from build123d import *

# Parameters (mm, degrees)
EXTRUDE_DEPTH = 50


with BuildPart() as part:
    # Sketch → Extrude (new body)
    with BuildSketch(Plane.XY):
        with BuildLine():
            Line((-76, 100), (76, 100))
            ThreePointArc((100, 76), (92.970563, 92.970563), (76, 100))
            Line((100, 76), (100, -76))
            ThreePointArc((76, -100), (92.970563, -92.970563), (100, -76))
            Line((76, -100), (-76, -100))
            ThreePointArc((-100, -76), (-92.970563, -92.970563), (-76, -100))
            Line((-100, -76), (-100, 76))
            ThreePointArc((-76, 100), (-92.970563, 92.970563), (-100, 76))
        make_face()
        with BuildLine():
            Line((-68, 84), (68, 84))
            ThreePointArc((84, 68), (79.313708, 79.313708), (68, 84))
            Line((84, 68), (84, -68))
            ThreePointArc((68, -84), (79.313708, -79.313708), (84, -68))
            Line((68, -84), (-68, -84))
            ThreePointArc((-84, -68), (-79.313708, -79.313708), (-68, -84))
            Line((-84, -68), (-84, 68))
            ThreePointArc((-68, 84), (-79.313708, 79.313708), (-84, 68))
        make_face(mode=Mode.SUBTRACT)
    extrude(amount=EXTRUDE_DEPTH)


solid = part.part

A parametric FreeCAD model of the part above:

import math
import FreeCAD as App
import Part
import Sketcher

V = App.Vector

doc = App.newDocument("Part")
body = doc.addObject("PartDesign::Body", "Body")

# Sketch on XY plane
sketch1 = body.newObject("Sketcher::SketchObject", "Sketch")
sketch1.AttachmentSupport = (doc.getObject("XY_Plane"), [""])
sketch1.MapMode = "FlatFace"
sketch1.addGeometry([
    Part.LineSegment(V(76, 100, 0), V(-76, 100, 0)),  # 0
    Part.ArcOfCircle(Part.Circle(V(-76, 76, 0), V(0, 0, 1), 24), math.radians(90), math.radians(180)),  # 1
    Part.LineSegment(V(-100, 76, 0), V(-100, -76, 0)),  # 2
    Part.ArcOfCircle(Part.Circle(V(-76, -76, 0), V(0, 0, 1), 24), math.radians(180), math.radians(270)),  # 3
    Part.LineSegment(V(-76, -100, 0), V(76, -100, 0)),  # 4
    Part.ArcOfCircle(Part.Circle(V(76, -76, 0), V(0, 0, 1), 24), math.radians(-90), math.radians(0)),  # 5
    Part.LineSegment(V(100, -76, 0), V(100, 76, 0)),  # 6
    Part.ArcOfCircle(Part.Circle(V(76, 76, 0), V(0, 0, 1), 24), math.radians(0), math.radians(90)),  # 7
    Part.LineSegment(V(-68, 84, 0), V(68, 84, 0)),  # 8
    Part.ArcOfCircle(Part.Circle(V(68, 68, 0), V(0, 0, 1), 16), math.radians(0), math.radians(90)),  # 9
    Part.LineSegment(V(84, 68, 0), V(84, -68, 0)),  # 10
    Part.ArcOfCircle(Part.Circle(V(68, -68, 0), V(0, 0, 1), 16), math.radians(-90), math.radians(0)),  # 11
    Part.LineSegment(V(68, -84, 0), V(-68, -84, 0)),  # 12
    Part.ArcOfCircle(Part.Circle(V(-68, -68, 0), V(0, 0, 1), 16), math.radians(-180), math.radians(-90)),  # 13
    Part.LineSegment(V(-84, -68, 0), V(-84, 68, 0)),  # 14
    Part.ArcOfCircle(Part.Circle(V(-68, 68, 0), V(0, 0, 1), 16), math.radians(90), math.radians(180)),  # 15
], False)
sketch1.addConstraint([
    Sketcher.Constraint("Tangent", 0, 2, 1, 1),
    Sketcher.Constraint("Tangent", 1, 2, 2, 1),
    Sketcher.Constraint("Tangent", 2, 2, 3, 1),
    Sketcher.Constraint("Tangent", 3, 2, 4, 1),
    Sketcher.Constraint("Tangent", 4, 2, 5, 1),
    Sketcher.Constraint("Tangent", 5, 2, 6, 1),
    Sketcher.Constraint("Tangent", 6, 2, 7, 1),
    Sketcher.Constraint("Tangent", 7, 2, 0, 1),
    Sketcher.Constraint("Tangent", 8, 2, 9, 2),
    Sketcher.Constraint("Tangent", 9, 1, 10, 1),
    Sketcher.Constraint("Tangent", 10, 2, 11, 2),
    Sketcher.Constraint("Tangent", 11, 1, 12, 1),
    Sketcher.Constraint("Tangent", 12, 2, 13, 2),
    Sketcher.Constraint("Tangent", 13, 1, 14, 1),
    Sketcher.Constraint("Tangent", 14, 2, 15, 2),
    Sketcher.Constraint("Tangent", 15, 1, 8, 1),
    Sketcher.Constraint("Horizontal", 0),
    Sketcher.Constraint("Vertical", 2),
    Sketcher.Constraint("Horizontal", 4),
    Sketcher.Constraint("Vertical", 6),
    Sketcher.Constraint("Horizontal", 8),
    Sketcher.Constraint("Vertical", 10),
    Sketcher.Constraint("Horizontal", 12),
    Sketcher.Constraint("Vertical", 14),
    Sketcher.Constraint("Equal", 1, 3),
    Sketcher.Constraint("Equal", 3, 5),
    Sketcher.Constraint("Equal", 5, 7),
    Sketcher.Constraint("Equal", 9, 11),
    Sketcher.Constraint("Equal", 11, 13),
    Sketcher.Constraint("Equal", 13, 15),
    Sketcher.Constraint("Symmetric", 1, 3, 5, 3, -1, 1),
    Sketcher.Constraint("Symmetric", 9, 3, 13, 3, -1, 1),
    Sketcher.Constraint("Equal", 4, 2),
    Sketcher.Constraint("Equal", 12, 10),
    Sketcher.Constraint("Radius", 1, 23.999999),
    Sketcher.Constraint("Radius", 9, 16.000002),
    Sketcher.Constraint("DistanceX", 0, 2, 0, 1, 152.0),
    Sketcher.Constraint("DistanceX", 8, 1, 8, 2, 136.0),
])
pad1 = body.newObject("PartDesign::Pad", "Pad")
pad1.Profile = sketch1
pad1.Length = 50

doc.recompute()
